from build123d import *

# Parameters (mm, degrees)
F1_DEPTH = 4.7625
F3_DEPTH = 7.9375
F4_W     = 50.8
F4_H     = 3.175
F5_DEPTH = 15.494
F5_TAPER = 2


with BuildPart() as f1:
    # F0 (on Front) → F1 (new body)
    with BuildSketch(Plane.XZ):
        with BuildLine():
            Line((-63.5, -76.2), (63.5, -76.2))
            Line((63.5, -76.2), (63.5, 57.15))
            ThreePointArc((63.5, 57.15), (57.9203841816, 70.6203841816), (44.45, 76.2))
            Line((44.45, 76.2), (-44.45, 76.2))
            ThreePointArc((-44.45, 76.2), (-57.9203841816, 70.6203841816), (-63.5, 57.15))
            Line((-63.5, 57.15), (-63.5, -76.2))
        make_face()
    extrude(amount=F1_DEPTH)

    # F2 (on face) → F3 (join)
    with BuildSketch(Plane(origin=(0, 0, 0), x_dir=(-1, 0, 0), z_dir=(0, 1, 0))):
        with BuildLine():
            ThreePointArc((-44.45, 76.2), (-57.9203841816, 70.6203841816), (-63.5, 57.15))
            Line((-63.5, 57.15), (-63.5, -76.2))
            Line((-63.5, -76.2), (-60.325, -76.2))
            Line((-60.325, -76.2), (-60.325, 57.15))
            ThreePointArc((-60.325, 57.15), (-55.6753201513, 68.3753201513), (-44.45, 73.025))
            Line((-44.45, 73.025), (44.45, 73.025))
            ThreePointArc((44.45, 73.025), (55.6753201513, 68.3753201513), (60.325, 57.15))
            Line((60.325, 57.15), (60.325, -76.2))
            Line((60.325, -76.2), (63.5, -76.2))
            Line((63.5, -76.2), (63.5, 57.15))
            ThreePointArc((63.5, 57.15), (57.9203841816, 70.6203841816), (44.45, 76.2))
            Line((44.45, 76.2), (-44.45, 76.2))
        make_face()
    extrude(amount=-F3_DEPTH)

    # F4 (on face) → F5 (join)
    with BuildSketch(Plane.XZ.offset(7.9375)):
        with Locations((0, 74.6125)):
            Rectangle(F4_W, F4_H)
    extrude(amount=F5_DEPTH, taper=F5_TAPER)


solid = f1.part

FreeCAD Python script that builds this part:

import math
import FreeCAD as App
import Part
import Sketcher

V = App.Vector
Q = App.Units.Quantity


def add_polygon(sketch, points):
    """Adds a closed chain of lines whose ends are joined by coincident constraints."""
    first, n = sketch.GeometryCount, len(points)
    for a, b in zip(points, points[1:] + points[:1]):
        sketch.addGeometry(Part.LineSegment(App.Vector(*a, 0), App.Vector(*b, 0)), False)
    for i in range(n):
        sketch.addConstraint(Sketcher.Constraint("Coincident", first + i, 2, first + (i + 1) % n, 1))

doc = App.newDocument("Part")
body = doc.addObject("PartDesign::Body", "Body")

sketch1 = body.newObject("Sketcher::SketchObject", "Sketch")
sketch1.AttachmentSupport = (doc.getObject("XZ_Plane"), [""])
sketch1.MapMode = "FlatFace"
sketch1.addGeometry([
    Part.LineSegment(V(-64, -76, 0), V(64, -76, 0)),
    Part.LineSegment(V(64, -76, 0), V(64, 57, 0)),
    Part.ArcOfCircle(Part.Circle(V(44, 57, 0), V(0, 0, 1), 19), math.radians(0), math.radians(90)),
    Part.LineSegment(V(44, 76, 0), V(-44, 76, 0)),
    Part.ArcOfCircle(Part.Circle(V(-44, 57, 0), V(0, 0, 1), 19), math.radians(90), math.radians(180)),
    Part.LineSegment(V(-64, 57, 0), V(-64, -76, 0)),
], False)
sketch1.addConstraint([
    Sketcher.Constraint("Coincident", 0, 2, 1, 1),
    Sketcher.Constraint("Tangent", 1, 2, 2, 1),
    Sketcher.Constraint("Tangent", 2, 2, 3, 1),
    Sketcher.Constraint("Tangent", 3, 2, 4, 1),
    Sketcher.Constraint("Tangent", 4, 2, 5, 1),
    Sketcher.Constraint("Coincident", 5, 2, 0, 1),
    Sketcher.Constraint("Horizontal", 0),
    Sketcher.Constraint("Vertical", 1),
    Sketcher.Constraint("Horizontal", 3),
    Sketcher.Constraint("Vertical", 5),
    Sketcher.Constraint("Equal", 2, 4),
    Sketcher.Constraint("DistanceX", 0, 1, 0, 2, Q("5 in")),
    Sketcher.Constraint("Radius", 2, Q("0.75 in")),
    Sketcher.Constraint("DistanceY", 0, 2, -1, 1, Q("3 in")),
    Sketcher.Constraint("DistanceY", -1, 1, 2, 2, Q("3 in")),
    Sketcher.Constraint("DistanceX", -1, 1, 0, 2, Q("2.5 in")),
])
pad1 = body.newObject("PartDesign::Pad", "Pad")
pad1.Profile = sketch1
pad1.Length = Q("0.1875 in")

sketch2 = body.newObject("Sketcher::SketchObject", "Sketch001")
sketch2.AttachmentSupport = (doc.getObject("XZ_Plane"), [""])
sketch2.MapMode = "FlatFace"
sketch2.addGeometry([
    Part.ArcOfCircle(Part.Circle(V(44.5, 57.1, 0), V(0, 0, 1), 19.1), math.radians(0), math.radians(90)),
    Part.LineSegment(V(63.5, 57.1, 0), V(63.5, -76.2, 0)),
    Part.LineSegment(V(63.5, -76.2, 0), V(60.3, -76.2, 0)),
    Part.LineSegment(V(60.3, -76.2, 0), V(60.3, 57.1, 0)),
    Part.ArcOfCircle(Part.Circle(V(44.5, 57.1, 0), V(0, 0, 1), 15.9), math.radians(0), math.radians(90)),
    Part.LineSegment(V(44.5, 73, 0), V(-44.5, 73, 0)),
    Part.ArcOfCircle(Part.Circle(V(-44.5, 57.1, 0), V(0, 0, 1), 15.9), math.radians(90), math.radians(180)),
    Part.LineSegment(V(-60.3, 57.1, 0), V(-60.3, -76.2, 0)),
    Part.LineSegment(V(-60.3, -76.2, 0), V(-63.5, -76.2, 0)),
    Part.LineSegment(V(-63.5, -76.2, 0), V(-63.5, 57.1, 0)),
    Part.ArcOfCircle(Part.Circle(V(-44.5, 57.1, 0), V(0, 0, 1), 19.1), math.radians(90), math.radians(180)),
    Part.LineSegment(V(-44.5, 76.2, 0), V(44.5, 76.2, 0)),
], False)
sketch2.addConstraint([
    Sketcher.Constraint("Tangent", 0, 1, 1, 1),
    Sketcher.Constraint("Coincident", 1, 2, 2, 1),
    Sketcher.Constraint("Coincident", 2, 2, 3, 1),
    Sketcher.Constraint("Tangent", 3, 2, 4, 1),
    Sketcher.Constraint("Tangent", 4, 2, 5, 1),
    Sketcher.Constraint("Tangent", 5, 2, 6, 1),
    Sketcher.Constraint("Tangent", 6, 2, 7, 1),
    Sketcher.Constraint("Coincident", 7, 2, 8, 1),
    Sketcher.Constraint("Coincident", 8, 2, 9, 1),
    Sketcher.Constraint("Tangent", 9, 2, 10, 2),
    Sketcher.Constraint("Tangent", 10, 1, 11, 1),
    Sketcher.Constraint("Tangent", 11, 2, 0, 2),
    Sketcher.Constraint("Vertical", 1),
    Sketcher.Constraint("Horizontal", 2),
    Sketcher.Constraint("Vertical", 3),
    Sketcher.Constraint("Horizontal", 5),
    Sketcher.Constraint("Vertical", 7),
    Sketcher.Constraint("Horizontal", 8),
    Sketcher.Constraint("Vertical", 9),
    Sketcher.Constraint("Horizontal", 11),
    Sketcher.Constraint("Coincident", 4, 3, 0, 3),
    Sketcher.Constraint("Coincident", 10, 3, 6, 3),
    Sketcher.Constraint("Equal", 4, 6),
    Sketcher.Constraint("Symmetric", 2, 2, 7, 2, -2),
    Sketcher.Constraint("Radius", 0, Q("0.75 in")),
    Sketcher.Constraint("DistanceX", 5, 2, 5, 1, Q("3.5 in")),
    Sketcher.Constraint("DistanceY", 1, 2, -1, 1, Q("3 in")),
    Sketcher.Constraint("DistanceY", -1, 1, 10, 1, Q("3 in")),
    Sketcher.Constraint("Radius", 4, Q("0.625 in")),
])
pad2 = body.newObject("PartDesign::Pad", "Pad001")
pad2.Profile = sketch2
pad2.Length = Q("0.3125 in")

sketch3 = body.newObject("Sketcher::SketchObject", "Sketch002")
sketch3.AttachmentSupport = (doc.getObject("XZ_Plane"), [""])
sketch3.MapMode = "FlatFace"
sketch3.AttachmentOffset = App.Placement(V(0, 0, 0.3125 * 25.4), App.Rotation())
add_polygon(sketch3, [(-25.4, 76.2), (-25.4, 73), (25.4, 73), (25.4, 76.2)])
sketch3.addConstraint([
    Sketcher.Constraint("Vertical", 0),
    Sketcher.Constraint("Horizontal", 1),
    Sketcher.Constraint("Vertical", 2),
    Sketcher.Constraint("Horizontal", 3),
    Sketcher.Constraint("DistanceX", 1, 1, 1, 2, Q("2 in")),
    Sketcher.Constraint("DistanceX", 0, 2, -1, 1, Q("1 in")),
    Sketcher.Constraint("DistanceY", -1, 1, 2, 2, Q("3 in")),
    Sketcher.Constraint("DistanceY", 0, 2, 0, 1, Q("0.125 in")),
])
pad3 = body.newObject("PartDesign::Pad", "Pad002")
pad3.Profile = sketch3
pad3.Length = Q("0.61 in")
pad3.TaperAngle = -2

doc.recompute()
